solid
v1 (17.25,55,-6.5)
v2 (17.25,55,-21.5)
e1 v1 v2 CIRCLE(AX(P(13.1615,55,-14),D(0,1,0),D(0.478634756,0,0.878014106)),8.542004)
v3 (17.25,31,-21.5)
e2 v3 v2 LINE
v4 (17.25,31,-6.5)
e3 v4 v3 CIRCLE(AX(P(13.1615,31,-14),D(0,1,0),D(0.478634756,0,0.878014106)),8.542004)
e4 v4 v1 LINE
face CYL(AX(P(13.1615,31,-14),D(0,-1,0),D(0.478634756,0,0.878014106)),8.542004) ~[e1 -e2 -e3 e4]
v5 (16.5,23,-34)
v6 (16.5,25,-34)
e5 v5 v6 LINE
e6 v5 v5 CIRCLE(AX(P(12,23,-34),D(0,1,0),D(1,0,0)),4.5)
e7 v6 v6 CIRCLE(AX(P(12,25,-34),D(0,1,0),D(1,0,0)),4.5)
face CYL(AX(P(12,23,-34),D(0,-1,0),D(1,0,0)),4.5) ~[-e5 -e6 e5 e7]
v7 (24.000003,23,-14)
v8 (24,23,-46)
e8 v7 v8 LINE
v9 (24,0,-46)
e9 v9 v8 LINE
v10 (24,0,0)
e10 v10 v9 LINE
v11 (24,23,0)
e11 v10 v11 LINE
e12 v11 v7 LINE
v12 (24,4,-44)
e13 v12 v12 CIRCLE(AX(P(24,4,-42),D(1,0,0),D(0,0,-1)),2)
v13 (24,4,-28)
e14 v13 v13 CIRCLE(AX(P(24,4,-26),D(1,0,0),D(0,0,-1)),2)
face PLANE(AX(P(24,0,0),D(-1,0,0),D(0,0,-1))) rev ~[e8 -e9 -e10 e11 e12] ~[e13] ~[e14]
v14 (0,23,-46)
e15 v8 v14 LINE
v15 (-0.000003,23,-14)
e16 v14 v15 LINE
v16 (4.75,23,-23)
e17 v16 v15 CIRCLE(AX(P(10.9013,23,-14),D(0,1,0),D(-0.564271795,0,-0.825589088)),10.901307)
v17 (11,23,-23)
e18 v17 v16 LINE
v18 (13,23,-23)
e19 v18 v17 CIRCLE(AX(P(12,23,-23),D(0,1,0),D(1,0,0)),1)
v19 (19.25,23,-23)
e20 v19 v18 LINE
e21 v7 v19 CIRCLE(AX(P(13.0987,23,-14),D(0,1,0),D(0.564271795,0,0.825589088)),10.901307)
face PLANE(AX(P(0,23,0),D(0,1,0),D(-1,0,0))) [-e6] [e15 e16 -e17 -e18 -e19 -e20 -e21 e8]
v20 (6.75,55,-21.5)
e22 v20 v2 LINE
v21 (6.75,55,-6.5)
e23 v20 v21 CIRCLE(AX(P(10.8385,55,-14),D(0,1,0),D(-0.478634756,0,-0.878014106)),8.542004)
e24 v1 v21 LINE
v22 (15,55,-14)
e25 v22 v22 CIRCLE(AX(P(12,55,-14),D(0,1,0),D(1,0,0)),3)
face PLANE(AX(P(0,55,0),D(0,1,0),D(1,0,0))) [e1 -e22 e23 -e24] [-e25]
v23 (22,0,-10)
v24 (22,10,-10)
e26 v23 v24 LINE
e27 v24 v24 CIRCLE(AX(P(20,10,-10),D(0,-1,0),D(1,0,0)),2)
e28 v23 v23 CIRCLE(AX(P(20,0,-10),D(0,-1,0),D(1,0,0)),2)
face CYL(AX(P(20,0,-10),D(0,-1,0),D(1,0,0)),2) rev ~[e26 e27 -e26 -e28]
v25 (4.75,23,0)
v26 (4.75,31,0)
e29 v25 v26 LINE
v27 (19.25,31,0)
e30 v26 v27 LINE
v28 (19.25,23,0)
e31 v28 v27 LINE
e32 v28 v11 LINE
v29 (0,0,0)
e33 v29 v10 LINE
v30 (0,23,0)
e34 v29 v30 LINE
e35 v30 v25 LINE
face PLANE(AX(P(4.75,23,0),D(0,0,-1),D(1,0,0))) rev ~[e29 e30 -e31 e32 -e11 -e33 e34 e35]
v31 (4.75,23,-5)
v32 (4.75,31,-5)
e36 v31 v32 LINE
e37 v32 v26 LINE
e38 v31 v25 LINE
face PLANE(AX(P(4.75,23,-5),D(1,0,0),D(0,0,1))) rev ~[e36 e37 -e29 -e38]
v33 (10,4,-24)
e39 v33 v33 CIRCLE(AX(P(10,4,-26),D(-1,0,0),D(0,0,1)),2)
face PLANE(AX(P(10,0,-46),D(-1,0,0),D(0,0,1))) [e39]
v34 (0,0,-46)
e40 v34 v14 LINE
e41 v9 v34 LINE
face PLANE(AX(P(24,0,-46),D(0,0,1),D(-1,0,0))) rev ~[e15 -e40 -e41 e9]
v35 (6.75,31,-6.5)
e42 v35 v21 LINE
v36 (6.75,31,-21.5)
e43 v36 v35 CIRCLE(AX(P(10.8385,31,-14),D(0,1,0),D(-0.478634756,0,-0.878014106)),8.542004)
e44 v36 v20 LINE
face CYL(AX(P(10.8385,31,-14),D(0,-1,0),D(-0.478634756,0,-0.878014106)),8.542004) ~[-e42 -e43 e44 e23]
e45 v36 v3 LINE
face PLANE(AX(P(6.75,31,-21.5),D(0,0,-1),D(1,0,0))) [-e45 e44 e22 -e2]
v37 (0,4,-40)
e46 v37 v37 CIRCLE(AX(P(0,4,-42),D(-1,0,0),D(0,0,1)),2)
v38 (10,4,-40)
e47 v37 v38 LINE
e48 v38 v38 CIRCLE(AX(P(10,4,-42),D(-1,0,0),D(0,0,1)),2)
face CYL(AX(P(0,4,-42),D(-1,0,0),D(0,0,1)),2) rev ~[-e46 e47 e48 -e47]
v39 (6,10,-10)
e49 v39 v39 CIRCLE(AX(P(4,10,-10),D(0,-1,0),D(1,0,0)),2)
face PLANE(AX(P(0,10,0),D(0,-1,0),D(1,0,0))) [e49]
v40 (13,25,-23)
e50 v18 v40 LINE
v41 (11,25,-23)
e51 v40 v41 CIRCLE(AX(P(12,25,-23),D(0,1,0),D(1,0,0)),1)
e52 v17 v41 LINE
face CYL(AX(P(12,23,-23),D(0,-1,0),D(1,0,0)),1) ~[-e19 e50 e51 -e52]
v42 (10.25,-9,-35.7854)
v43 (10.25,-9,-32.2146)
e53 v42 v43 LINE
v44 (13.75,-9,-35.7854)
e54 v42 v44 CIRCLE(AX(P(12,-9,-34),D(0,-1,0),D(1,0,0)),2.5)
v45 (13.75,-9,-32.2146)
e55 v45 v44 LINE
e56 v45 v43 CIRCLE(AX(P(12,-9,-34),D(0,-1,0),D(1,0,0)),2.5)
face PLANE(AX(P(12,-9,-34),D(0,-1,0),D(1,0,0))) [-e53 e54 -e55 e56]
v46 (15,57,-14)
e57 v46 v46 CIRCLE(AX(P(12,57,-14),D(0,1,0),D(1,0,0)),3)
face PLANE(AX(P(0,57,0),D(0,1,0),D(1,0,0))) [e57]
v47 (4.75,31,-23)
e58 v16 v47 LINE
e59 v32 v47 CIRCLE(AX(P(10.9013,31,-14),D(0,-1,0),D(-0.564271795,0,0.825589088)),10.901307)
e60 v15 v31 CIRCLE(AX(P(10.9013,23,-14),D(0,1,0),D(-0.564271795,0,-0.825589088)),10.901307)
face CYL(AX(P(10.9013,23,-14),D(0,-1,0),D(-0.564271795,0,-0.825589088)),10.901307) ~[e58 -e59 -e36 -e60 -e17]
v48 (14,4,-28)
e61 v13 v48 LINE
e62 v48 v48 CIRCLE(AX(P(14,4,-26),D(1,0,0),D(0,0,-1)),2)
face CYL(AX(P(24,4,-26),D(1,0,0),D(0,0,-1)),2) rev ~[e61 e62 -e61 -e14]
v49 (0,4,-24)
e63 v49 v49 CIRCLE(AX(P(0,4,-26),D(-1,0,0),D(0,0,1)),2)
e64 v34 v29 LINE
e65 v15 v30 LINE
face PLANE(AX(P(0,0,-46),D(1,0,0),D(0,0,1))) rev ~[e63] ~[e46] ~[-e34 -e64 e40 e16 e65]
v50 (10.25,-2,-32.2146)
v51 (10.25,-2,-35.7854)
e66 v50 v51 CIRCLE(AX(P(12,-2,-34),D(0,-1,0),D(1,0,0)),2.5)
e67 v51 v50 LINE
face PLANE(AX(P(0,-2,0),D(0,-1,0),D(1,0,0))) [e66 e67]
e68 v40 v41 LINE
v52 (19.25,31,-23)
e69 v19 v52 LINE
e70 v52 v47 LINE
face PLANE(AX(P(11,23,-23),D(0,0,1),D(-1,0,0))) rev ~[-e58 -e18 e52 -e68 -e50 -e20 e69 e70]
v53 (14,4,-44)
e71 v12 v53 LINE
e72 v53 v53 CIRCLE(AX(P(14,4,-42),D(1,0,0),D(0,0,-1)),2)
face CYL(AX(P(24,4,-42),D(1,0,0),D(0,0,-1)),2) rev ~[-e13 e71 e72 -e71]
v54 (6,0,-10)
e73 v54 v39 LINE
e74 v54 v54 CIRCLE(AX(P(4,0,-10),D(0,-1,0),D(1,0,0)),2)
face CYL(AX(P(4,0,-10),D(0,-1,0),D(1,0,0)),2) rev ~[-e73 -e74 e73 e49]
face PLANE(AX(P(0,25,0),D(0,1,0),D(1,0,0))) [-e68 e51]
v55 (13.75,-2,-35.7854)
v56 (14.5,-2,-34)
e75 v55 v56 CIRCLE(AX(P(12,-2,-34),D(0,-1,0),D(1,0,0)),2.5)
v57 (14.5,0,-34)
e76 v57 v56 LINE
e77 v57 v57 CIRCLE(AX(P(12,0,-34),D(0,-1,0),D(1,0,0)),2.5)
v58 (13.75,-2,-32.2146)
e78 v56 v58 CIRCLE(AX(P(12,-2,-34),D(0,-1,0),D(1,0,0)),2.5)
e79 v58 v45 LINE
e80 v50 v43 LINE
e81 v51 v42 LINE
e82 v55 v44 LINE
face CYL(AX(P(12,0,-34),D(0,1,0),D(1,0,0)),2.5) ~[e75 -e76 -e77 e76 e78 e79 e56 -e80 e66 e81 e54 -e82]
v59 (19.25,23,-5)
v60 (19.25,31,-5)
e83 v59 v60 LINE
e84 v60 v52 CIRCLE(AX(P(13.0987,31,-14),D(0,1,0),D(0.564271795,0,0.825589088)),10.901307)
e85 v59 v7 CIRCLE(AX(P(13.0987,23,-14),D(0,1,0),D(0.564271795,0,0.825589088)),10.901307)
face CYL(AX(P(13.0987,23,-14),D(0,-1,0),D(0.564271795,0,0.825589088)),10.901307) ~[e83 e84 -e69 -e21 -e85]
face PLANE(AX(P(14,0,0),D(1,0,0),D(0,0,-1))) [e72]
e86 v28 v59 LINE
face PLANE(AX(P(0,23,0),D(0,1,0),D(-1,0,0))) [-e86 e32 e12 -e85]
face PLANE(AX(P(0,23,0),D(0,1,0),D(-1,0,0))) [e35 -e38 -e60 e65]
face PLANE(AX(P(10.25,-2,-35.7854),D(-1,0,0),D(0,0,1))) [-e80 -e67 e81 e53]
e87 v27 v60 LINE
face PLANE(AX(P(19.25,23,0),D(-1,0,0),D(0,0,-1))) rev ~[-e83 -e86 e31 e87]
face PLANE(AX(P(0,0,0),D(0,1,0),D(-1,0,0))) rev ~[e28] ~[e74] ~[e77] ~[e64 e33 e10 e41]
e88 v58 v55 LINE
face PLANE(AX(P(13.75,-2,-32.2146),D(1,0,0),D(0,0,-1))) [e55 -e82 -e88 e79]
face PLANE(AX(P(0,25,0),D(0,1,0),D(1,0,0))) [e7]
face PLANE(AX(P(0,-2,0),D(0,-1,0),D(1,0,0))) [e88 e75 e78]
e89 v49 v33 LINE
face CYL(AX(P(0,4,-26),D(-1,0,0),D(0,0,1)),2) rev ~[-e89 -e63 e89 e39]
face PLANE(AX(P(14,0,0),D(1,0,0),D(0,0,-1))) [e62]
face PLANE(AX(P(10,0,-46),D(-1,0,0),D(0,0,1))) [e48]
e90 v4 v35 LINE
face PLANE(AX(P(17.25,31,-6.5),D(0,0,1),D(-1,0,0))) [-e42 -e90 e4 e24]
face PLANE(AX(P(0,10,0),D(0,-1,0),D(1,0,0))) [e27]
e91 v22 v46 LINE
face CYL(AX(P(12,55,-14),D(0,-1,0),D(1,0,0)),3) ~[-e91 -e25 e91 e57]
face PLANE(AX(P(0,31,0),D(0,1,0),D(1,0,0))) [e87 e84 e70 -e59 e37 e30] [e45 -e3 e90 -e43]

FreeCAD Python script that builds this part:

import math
import FreeCAD as App
import Part
import Sketcher

V = App.Vector


def add_polygon(sketch, points):
    """Adds a closed chain of lines whose ends are joined by coincident constraints."""
    first, n = sketch.GeometryCount, len(points)
    for a, b in zip(points, points[1:] + points[:1]):
        sketch.addGeometry(Part.LineSegment(App.Vector(*a, 0), App.Vector(*b, 0)), False)
    for i in range(n):
        sketch.addConstraint(Sketcher.Constraint("Coincident", first + i, 2, first + (i + 1) % n, 1))

doc = App.newDocument("Part")
params = doc.addObject("Spreadsheet::Sheet", "Params")
for row, (alias, value) in enumerate([
    ("sketch1_width", "24 mm"),
    ("sketch1_height", "46 mm"),
    ("pad1_length", "23 mm"),
    ("sketch2_diameter", "9 mm"),
    ("sketch2_radius", "1 mm"),
    ("pad2_length", "2 mm"),
    ("sketch3_width", "14.5 mm"),
    ("pad3_length", "8 mm"),
    ("sketch4_width", "10.5 mm"),
    ("pad4_length", "24 mm"),
    ("sketch5_diameter", "6 mm"),
    ("pad5_length", "2 mm"),
    ("sketch6_diameter", "4 mm"),
    ("pocket1_length", "10 mm"),
    ("sketch7_diameter", "4 mm"),
    ("pocket2_length", "10 mm"),
    ("sketch8_diameter", "4 mm"),
    ("pocket3_length", "10 mm"),
    ("sketch9_diameter", "5 mm"),
    ("pad6_length", "2 mm"),
    ("sketch10_radius", "2.5 mm"),
    ("pad7_length", "7 mm"),
], start=1):
    params.set(f"A{row}", alias)
    params.set(f"B{row}", "=" + value)
    params.setAlias(f"B{row}", alias)

body = doc.addObject("PartDesign::Body", "Body")

# Sketch on XZ plane
sketch1 = doc.addObject("Sketcher::SketchObject", "Sketch")
body.addObject(sketch1)
sketch1.AttachmentSupport = (doc.XZ_Plane, [""])
sketch1.MapMode = "FlatFace"
add_polygon(sketch1, [(0, -46), (0, 0), (24, 0), (24, -46)])  # lines 0-3
sketch1.addConstraint([
    Sketcher.Constraint("Vertical", 0),
    Sketcher.Constraint("Horizontal", 1),
    Sketcher.Constraint("Vertical", 2),
    Sketcher.Constraint("Horizontal", 3),
    Sketcher.Constraint("Coincident", 0, 2, -1, 1),
    Sketcher.Constraint("DistanceX", 1, 1, 1, 2, 24.0),
    Sketcher.Constraint("DistanceY", 0, 1, 0, 2, 46.0),
])
sketch1.setExpression("Constraints[9]", "Params.sketch1_width")
sketch1.setExpression("Constraints[10]", "Params.sketch1_height")
pad1 = doc.addObject("PartDesign::Pad", "Pad")
body.addObject(pad1)
pad1.Profile = sketch1
pad1.setExpression("Length", "Params.pad1_length")
pad1.Reversed = True

# Sketch on XZ plane
sketch2 = doc.addObject("Sketcher::SketchObject", "Sketch001")
body.addObject(sketch2)
sketch2.AttachmentSupport = (doc.XZ_Plane, [""])
sketch2.MapMode = "FlatFace"
sketch2.AttachmentOffset = App.Placement(V(0, 0, -23), App.Rotation())
sketch2.addGeometry([
    Part.ArcOfCircle(Part.Circle(V(12, -23, 0), V(0, 0, 1), 1), math.radians(180), math.radians(360)),
    Part.LineSegment(V(11, -23, 0), V(13, -23, 0)),
    Part.Circle(V(12, -34, 0), V(0, 0, 1), 4.5),
], False)
sketch2.addConstraint([
    Sketcher.Constraint("Coincident", 0, 1, 1, 1),
    Sketcher.Constraint("Coincident", 1, 2, 0, 2),
    Sketcher.Constraint("Horizontal", 1),
    Sketcher.Constraint("Vertical", 0, 3, 2, 3),
    Sketcher.Constraint("Diameter", 2, 9.0),
    Sketcher.Constraint("Radius", 0, 1.0),
    Sketcher.Constraint("DistanceX", -1, 1, 0, 3, 12.0),
    Sketcher.Constraint("DistanceY", 0, 3, -1, 1, 23.0),
    Sketcher.Constraint("DistanceY", 0, 1, -1, 1, 23.0),
    Sketcher.Constraint("DistanceY", 2, 3, -1, 1, 34.0),
])
sketch2.setExpression("Constraints[4]", "Params.sketch2_diameter")
sketch2.setExpression("Constraints[5]", "Params.sketch2_radius")
pad2 = doc.addObject("PartDesign::Pad", "Pad001")
body.addObject(pad2)
pad2.Profile = sketch2
pad2.setExpression("Length", "Params.pad2_length")
pad2.Reversed = True

# Sketch on XZ plane
sketch3 = doc.addObject("Sketcher::SketchObject", "Sketch002")
body.addObject(sketch3)
sketch3.AttachmentSupport = (doc.XZ_Plane, [""])
sketch3.MapMode = "FlatFace"
sketch3.AttachmentOffset = App.Placement(V(0, 0, -23), App.Rotation())
sketch3.addGeometry([
    Part.LineSegment(V(5, -5, 0), V(5, 0, 0)),  # 0
    Part.LineSegment(V(5, 0, 0), V(19, 0, 0)),  # 1
    Part.LineSegment(V(19, 0, 0), V(19, -5, 0)),  # 2
    Part.ArcOfCircle(Part.Circle(V(13, -14, 0), V(0, 0, 1), 11), math.radians(-56), math.radians(56)),  # 3
    Part.LineSegment(V(19, -23, 0), V(5, -23, 0)),  # 4
    Part.ArcOfCircle(Part.Circle(V(11, -14, 0), V(0, 0, 1), 11), math.radians(124), math.radians(236)),  # 5
], False)
sketch3.addConstraint([
    Sketcher.Constraint("Coincident", 0, 2, 1, 1),
    Sketcher.Constraint("Coincident", 1, 2, 2, 1),
    Sketcher.Constraint("Coincident", 2, 2, 3, 2),
    Sketcher.Constraint("Coincident", 3, 1, 4, 1),
    Sketcher.Constraint("Coincident", 4, 2, 5, 2),
    Sketcher.Constraint("Coincident", 5, 1, 0, 1),
    Sketcher.Constraint("Vertical", 0),
    Sketcher.Constraint("Horizontal", 1),
    Sketcher.Constraint("Vertical", 2),
    Sketcher.Constraint("Horizontal", 4),
    Sketcher.Constraint("Equal", 3, 5),
    Sketcher.Constraint("PointOnObject", 0, 2, -1),
    Sketcher.Constraint("Horizontal", 3, 3, 5, 3),
    Sketcher.Constraint("Horizontal", 2, 2, 5, 1),
    Sketcher.Constraint("Vertical", 2, 2, 3, 1),
    Sketcher.Constraint("DistanceX", 1, 1, 1, 2, 14.5),
    Sketcher.Constraint("DistanceY", 3, 1, -1, 1, 23.0),
    Sketcher.Constraint("DistanceY", 3, 3, 2, 2, 9.0),
    Sketcher.Constraint("Radius", 3, 10.9013),
    Sketcher.Constraint("DistanceX", -1, 1, 0, 2, 4.75),
])
sketch3.setExpression("Constraints[15]", "Params.sketch3_width")
pad3 = doc.addObject("PartDesign::Pad", "Pad002")
body.addObject(pad3)
pad3.Profile = sketch3
pad3.setExpression("Length", "Params.pad3_length")
pad3.Reversed = True

# Sketch on XZ plane
sketch4 = doc.addObject("Sketcher::SketchObject", "Sketch003")
body.addObject(sketch4)
sketch4.AttachmentSupport = (doc.XZ_Plane, [""])
sketch4.MapMode = "FlatFace"
sketch4.AttachmentOffset = App.Placement(V(0, 0, -31), App.Rotation())
sketch4.addGeometry([
    Part.LineSegment(V(7, -6, 0), V(17, -6, 0)),
    Part.ArcOfCircle(Part.Circle(V(13, -14, 0), V(0, 0, 1), 9), math.radians(-61), math.radians(61)),
    Part.LineSegment(V(17, -22, 0), V(7, -22, 0)),
    Part.ArcOfCircle(Part.Circle(V(11, -14, 0), V(0, 0, 1), 9), math.radians(119), math.radians(241)),
], False)
sketch4.addConstraint([
    Sketcher.Constraint("Coincident", 0, 2, 1, 2),
    Sketcher.Constraint("Coincident", 1, 1, 2, 1),
    Sketcher.Constraint("Coincident", 2, 2, 3, 2),
    Sketcher.Constraint("Coincident", 3, 1, 0, 1),
    Sketcher.Constraint("Horizontal", 0),
    Sketcher.Constraint("Horizontal", 2),
    Sketcher.Constraint("Equal", 1, 3),
    Sketcher.Constraint("Horizontal", 1, 3, 3, 3),
    Sketcher.Constraint("Vertical", 0, 2, 1, 1),
    Sketcher.Constraint("Radius", 1, 8.542),
    Sketcher.Constraint("DistanceX", 0, 1, 0, 2, 10.5),
    Sketcher.Constraint("DistanceY", 1, 3, -1, 1, 14.0),
    Sketcher.Constraint("DistanceY", 1, 1, 0, 2, 15.0),
    Sketcher.Constraint("DistanceX", -1, 1, 0, 2, 17.25),
])
sketch4.setExpression("Constraints[10]", "Params.sketch4_width")
pad4 = doc.addObject("PartDesign::Pad", "Pad003")
body.addObject(pad4)
pad4.Profile = sketch4
pad4.setExpression("Length", "Params.pad4_length")
pad4.Reversed = True

# Sketch on XZ plane
sketch5 = doc.addObject("Sketcher::SketchObject", "Sketch004")
body.addObject(sketch5)
sketch5.AttachmentSupport = (doc.XZ_Plane, [""])
sketch5.MapMode = "FlatFace"
sketch5.AttachmentOffset = App.Placement(V(0, 0, -55), App.Rotation())
sketch5.addGeometry(Part.Circle(V(12, -14, 0), V(0, 0, 1), 3), False)
sketch5.addConstraint([
    Sketcher.Constraint("Diameter", 0, 6.0),
    Sketcher.Constraint("DistanceX", -1, 1, 0, 3, 12.0),
    Sketcher.Constraint("DistanceY", 0, 3, -1, 1, 14.0),
])
sketch5.setExpression("Constraints[0]", "Params.sketch5_diameter")
pad5 = doc.addObject("PartDesign::Pad", "Pad004")
body.addObject(pad5)
pad5.Profile = sketch5
pad5.setExpression("Length", "Params.pad5_length")
pad5.Reversed = True

# Sketch on YZ plane
sketch6 = doc.addObject("Sketcher::SketchObject", "Sketch005")
body.addObject(sketch6)
sketch6.AttachmentSupport = (doc.YZ_Plane, [""])
sketch6.MapMode = "FlatFace"
sketch6.AttachmentOffset = App.Placement(V(0, 0, 24), App.Rotation())
sketch6.addGeometry([
    Part.Circle(V(4, -42, 0), V(0, 0, 1), 2),
    Part.Circle(V(4, -26, 0), V(0, 0, 1), 2),
], False)
sketch6.addConstraint([
    Sketcher.Constraint("Equal", 0, 1),
    Sketcher.Constraint("Vertical", 0, 3, 1, 3),
    Sketcher.Constraint("Diameter", 0, 4.0),
    Sketcher.Constraint("DistanceX", -1, 1, 0, 3, 4.0),
    Sketcher.Constraint("DistanceY", 0, 3, 1, 3, 16.0),
    Sketcher.Constraint("DistanceY", 0, 3, -1, 1, 42.0),
])
sketch6.setExpression("Constraints[2]", "Params.sketch6_diameter")
pocket1 = doc.addObject("PartDesign::Pocket", "Pocket")
body.addObject(pocket1)
pocket1.Profile = sketch6
pocket1.setExpression("Length", "Params.pocket1_length")

# Sketch on YZ plane
sketch7 = doc.addObject("Sketcher::SketchObject", "Sketch006")
body.addObject(sketch7)
sketch7.AttachmentSupport = (doc.YZ_Plane, [""])
sketch7.MapMode = "FlatFace"
sketch7.addGeometry([
    Part.Circle(V(4, -42, 0), V(0, 0, 1), 2),
    Part.Circle(V(4, -26, 0), V(0, 0, 1), 2),
], False)
sketch7.addConstraint([
    Sketcher.Constraint("Equal", 0, 1),
    Sketcher.Constraint("Vertical", 0, 3, 1, 3),
    Sketcher.Constraint("Diameter", 0, 4.0),
    Sketcher.Constraint("DistanceX", -1, 1, 0, 3, 4.0),
    Sketcher.Constraint("DistanceY", 0, 3, -1, 1, 42.0),
    Sketcher.Constraint("DistanceY", 1, 3, -1, 1, 26.0),
])
sketch7.setExpression("Constraints[2]", "Params.sketch7_diameter")
pocket2 = doc.addObject("PartDesign::Pocket", "Pocket001")
body.addObject(pocket2)
pocket2.Profile = sketch7
pocket2.setExpression("Length", "Params.pocket2_length")
pocket2.Reversed = True

# Sketch on XZ plane
sketch8 = doc.addObject("Sketcher::SketchObject", "Sketch007")
body.addObject(sketch8)
sketch8.AttachmentSupport = (doc.XZ_Plane, [""])
sketch8.MapMode = "FlatFace"
sketch8.addGeometry([
    Part.Circle(V(20, -10, 0), V(0, 0, 1), 2),
    Part.Circle(V(4, -10, 0), V(0, 0, 1), 2),
], False)
sketch8.addConstraint([
    Sketcher.Constraint("Equal", 0, 1),
    Sketcher.Constraint("Horizontal", 0, 3, 1, 3),
    Sketcher.Constraint("Diameter", 0, 4.0),
    Sketcher.Constraint("DistanceY", 0, 3, -1, 1, 10.0),
    Sketcher.Constraint("DistanceX", -1, 1, 1, 3, 4.0),
    Sketcher.Constraint("DistanceX", -1, 1, 0, 3, 20.0),
])
sketch8.setExpression("Constraints[2]", "Params.sketch8_diameter")
pocket3 = doc.addObject("PartDesign::Pocket", "Pocket002")
body.addObject(pocket3)
pocket3.Profile = sketch8
pocket3.setExpression("Length", "Params.pocket3_length")

# Sketch on XZ plane
sketch9 = doc.addObject("Sketcher::SketchObject", "Sketch008")
body.addObject(sketch9)
sketch9.AttachmentSupport = (doc.XZ_Plane, [""])
sketch9.MapMode = "FlatFace"
sketch9.addGeometry(Part.Circle(V(12, -34, 0), V(0, 0, 1), 2.5), False)
sketch9.addConstraint([
    Sketcher.Constraint("Diameter", 0, 5.0),
    Sketcher.Constraint("DistanceX", -1, 1, 0, 3, 12.0),
    Sketcher.Constraint("DistanceY", 0, 3, -1, 1, 34.0),
])
sketch9.setExpression("Constraints[0]", "Params.sketch9_diameter")
pad6 = doc.addObject("PartDesign::Pad", "Pad005")
body.addObject(pad6)
pad6.Profile = sketch9
pad6.setExpression("Length", "Params.pad6_length")

# Sketch on XZ plane
sketch10 = doc.addObject("Sketcher::SketchObject", "Sketch009")
body.addObject(sketch10)
sketch10.AttachmentSupport = (doc.XZ_Plane, [""])
sketch10.MapMode = "FlatFace"
sketch10.AttachmentOffset = App.Placement(V(0, 0, 2), App.Rotation())
sketch10.addGeometry([
    Part.ArcOfCircle(Part.Circle(V(12, -34, 0), V(0, 0, 1), 2.5), math.radians(46), math.radians(134)),
    Part.LineSegment(V(10.2, -32.2, 0), V(10.2, -35.8, 0)),
    Part.ArcOfCircle(Part.Circle(V(12, -34, 0), V(0, 0, 1), 2.5), math.radians(-134), math.radians(-46)),
    Part.LineSegment(V(13.8, -35.8, 0), V(13.8, -32.2, 0)),
], False)
sketch10.addConstraint([
    Sketcher.Constraint("Coincident", 0, 2, 1, 1),
    Sketcher.Constraint("Coincident", 1, 2, 2, 1),
    Sketcher.Constraint("Coincident", 2, 2, 3, 1),
    Sketcher.Constraint("Coincident", 3, 2, 0, 1),
    Sketcher.Constraint("Vertical", 1),
    Sketcher.Constraint("Vertical", 3),
    Sketcher.Constraint("Coincident", 2, 3, 0, 3),
    Sketcher.Constraint("Equal", 0, 2),
    Sketcher.Constraint("Horizontal", 1, 2, 2, 2),
    Sketcher.Constraint("Radius", 0, 2.5),
    Sketcher.Constraint("DistanceX", 1, 2, 2, 2, 3.5),
    Sketcher.Constraint("DistanceX", -1, 1, 0, 3, 12.0),
    Sketcher.Constraint("DistanceY", 0, 3, -1, 1, 34.0),
])
sketch10.setExpression("Constraints[9]", "Params.sketch10_radius")
pad7 = doc.addObject("PartDesign::Pad", "Pad006")
body.addObject(pad7)
pad7.Profile = sketch10
pad7.setExpression("Length", "Params.pad7_length")

doc.recompute()
